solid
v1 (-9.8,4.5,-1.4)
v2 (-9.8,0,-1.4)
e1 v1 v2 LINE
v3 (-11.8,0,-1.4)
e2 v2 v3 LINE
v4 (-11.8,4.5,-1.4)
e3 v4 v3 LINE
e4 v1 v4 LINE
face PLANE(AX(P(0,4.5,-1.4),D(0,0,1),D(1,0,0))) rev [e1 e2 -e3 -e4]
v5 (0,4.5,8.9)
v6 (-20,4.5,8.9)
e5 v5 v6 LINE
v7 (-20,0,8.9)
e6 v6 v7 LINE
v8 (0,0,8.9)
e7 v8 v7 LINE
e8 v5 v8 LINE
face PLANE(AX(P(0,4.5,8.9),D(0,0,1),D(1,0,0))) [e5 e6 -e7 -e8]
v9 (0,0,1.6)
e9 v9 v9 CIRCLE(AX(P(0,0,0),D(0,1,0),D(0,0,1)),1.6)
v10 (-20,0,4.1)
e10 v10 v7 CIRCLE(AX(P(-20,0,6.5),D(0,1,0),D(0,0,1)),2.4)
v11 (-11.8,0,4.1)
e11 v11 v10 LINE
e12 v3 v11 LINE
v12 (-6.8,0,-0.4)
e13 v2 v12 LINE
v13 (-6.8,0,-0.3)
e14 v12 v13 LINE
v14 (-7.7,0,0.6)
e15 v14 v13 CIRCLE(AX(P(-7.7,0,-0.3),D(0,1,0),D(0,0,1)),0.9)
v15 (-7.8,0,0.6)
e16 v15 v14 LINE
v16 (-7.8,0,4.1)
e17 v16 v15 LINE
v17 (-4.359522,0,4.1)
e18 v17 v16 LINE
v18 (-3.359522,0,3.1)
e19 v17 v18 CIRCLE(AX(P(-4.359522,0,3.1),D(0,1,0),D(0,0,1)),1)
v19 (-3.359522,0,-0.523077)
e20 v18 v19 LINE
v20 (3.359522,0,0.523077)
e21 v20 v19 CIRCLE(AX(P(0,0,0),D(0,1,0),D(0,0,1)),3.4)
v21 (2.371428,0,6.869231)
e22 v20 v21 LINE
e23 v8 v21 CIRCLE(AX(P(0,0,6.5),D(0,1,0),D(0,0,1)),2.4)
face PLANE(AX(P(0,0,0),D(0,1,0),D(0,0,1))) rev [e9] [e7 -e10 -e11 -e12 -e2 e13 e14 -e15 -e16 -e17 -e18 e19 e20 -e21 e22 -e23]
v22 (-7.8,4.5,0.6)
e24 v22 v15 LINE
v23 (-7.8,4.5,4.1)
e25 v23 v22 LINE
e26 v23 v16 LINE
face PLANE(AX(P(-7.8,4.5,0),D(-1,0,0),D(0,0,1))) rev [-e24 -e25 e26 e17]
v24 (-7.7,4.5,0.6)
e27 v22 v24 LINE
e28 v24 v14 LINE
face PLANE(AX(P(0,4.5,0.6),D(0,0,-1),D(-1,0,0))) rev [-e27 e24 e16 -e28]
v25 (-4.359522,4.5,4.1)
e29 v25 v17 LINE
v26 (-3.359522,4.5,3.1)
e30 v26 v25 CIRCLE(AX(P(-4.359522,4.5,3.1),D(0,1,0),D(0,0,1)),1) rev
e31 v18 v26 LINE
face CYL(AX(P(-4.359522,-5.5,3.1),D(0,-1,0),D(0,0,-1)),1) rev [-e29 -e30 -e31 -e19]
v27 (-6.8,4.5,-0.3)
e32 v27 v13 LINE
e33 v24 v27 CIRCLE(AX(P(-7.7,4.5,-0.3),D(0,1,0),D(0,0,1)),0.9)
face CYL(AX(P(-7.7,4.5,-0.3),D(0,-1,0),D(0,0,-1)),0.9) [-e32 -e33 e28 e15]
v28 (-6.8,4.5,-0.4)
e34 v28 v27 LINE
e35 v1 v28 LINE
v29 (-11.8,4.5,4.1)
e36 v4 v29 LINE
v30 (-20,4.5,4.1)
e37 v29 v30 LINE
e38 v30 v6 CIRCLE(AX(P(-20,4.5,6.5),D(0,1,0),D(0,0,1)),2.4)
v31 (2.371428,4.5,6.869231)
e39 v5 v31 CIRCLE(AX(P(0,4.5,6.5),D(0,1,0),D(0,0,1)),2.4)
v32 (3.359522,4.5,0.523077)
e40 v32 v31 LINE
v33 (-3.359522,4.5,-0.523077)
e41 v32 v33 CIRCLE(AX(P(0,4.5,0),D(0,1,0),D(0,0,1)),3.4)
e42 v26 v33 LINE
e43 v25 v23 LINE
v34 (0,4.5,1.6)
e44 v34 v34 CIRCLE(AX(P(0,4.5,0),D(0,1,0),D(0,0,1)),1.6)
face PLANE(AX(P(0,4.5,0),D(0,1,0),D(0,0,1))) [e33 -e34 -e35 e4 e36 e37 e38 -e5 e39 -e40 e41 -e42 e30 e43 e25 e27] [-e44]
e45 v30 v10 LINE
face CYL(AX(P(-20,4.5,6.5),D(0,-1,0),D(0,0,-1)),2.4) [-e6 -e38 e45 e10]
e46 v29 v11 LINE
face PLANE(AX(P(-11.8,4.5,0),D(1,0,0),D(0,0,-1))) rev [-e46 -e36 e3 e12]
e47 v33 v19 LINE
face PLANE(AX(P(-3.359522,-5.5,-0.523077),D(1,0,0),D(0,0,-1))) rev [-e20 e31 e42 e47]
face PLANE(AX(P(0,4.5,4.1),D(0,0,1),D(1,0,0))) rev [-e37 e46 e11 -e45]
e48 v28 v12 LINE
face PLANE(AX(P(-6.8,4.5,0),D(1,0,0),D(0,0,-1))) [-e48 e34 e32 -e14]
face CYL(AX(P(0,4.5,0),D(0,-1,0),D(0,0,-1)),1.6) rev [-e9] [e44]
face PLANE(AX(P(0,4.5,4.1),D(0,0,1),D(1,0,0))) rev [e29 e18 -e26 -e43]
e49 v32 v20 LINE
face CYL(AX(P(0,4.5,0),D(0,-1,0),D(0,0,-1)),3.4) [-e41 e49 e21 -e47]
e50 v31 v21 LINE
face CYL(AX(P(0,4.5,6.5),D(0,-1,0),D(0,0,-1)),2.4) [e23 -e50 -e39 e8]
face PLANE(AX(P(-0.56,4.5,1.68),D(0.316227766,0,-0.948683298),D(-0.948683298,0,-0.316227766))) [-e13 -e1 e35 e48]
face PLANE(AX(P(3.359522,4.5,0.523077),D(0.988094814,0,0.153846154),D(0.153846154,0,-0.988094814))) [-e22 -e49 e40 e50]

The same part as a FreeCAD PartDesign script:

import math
import FreeCAD as App
import Part
import Sketcher
from FreeCAD import Vector


def edges_at(feature, points):
    """Names of the edges that pass closest to the given points."""
    edges = feature.Shape.Edges
    near = lambda p: min(range(len(edges)), key=lambda i: edges[i].distToShape(Part.Vertex(*p))[0])
    return sorted({f"Edge{near(p) + 1}" for p in points})

doc = App.newDocument("Part")
params = doc.addObject("Spreadsheet::Sheet", "Params")
for row, (alias, value) in enumerate([
    ("sketch1_diameter", "3.2 mm"),
    ("sketch1_radius", "3.4 mm"),
    ("sketch1_radius2", "0.9 mm"),
    ("sketch1_radius3", "2.4 mm"),
    ("sketch1_width", "2 mm"),
    ("pad1_length", "4.5 mm"),
    ("pocket1_length", "10 mm"),
    ("fillet_radius", "1 mm"),
], start=1):
    params.set(f"A{row}", alias)
    params.set(f"B{row}", "=" + value)
    params.setAlias(f"B{row}", alias)

body = doc.addObject("PartDesign::Body", "Body")

sketch1 = doc.addObject("Sketcher::SketchObject", "Sketch")
body.addObject(sketch1)
sketch1.AttachmentSupport = (doc.XZ_Plane, [""])
sketch1.MapMode = "FlatFace"
sketch1.addGeometry(Part.LineSegment(Vector(2.37, 6.87, 0), Vector(3.36, 0.52, 0)), False)
sketch1.addGeometry(Part.ArcOfCircle(Part.Circle(Vector(0, 0, 0), Vector(0, 0, 1), 3.4), math.radians(-171), math.radians(9)), False)
sketch1.addGeometry(Part.LineSegment(Vector(-3.36, -0.52, 0), Vector(-4.08, 4.1, 0)), False)
sketch1.addGeometry(Part.LineSegment(Vector(-4.08, 4.1, 0), Vector(-7.8, 4.1, 0)), False)
sketch1.addGeometry(Part.LineSegment(Vector(-7.8, 4.1, 0), Vector(-7.8, 0.6, 0)), False)
sketch1.addGeometry(Part.LineSegment(Vector(-7.8, 0.6, 0), Vector(-7.7, 0.6, 0)), False)
sketch1.addGeometry(Part.ArcOfCircle(Part.Circle(Vector(-7.7, -0.3, 0), Vector(0, 0, 1), 0.9), math.radians(0), math.radians(90)), False)
sketch1.addGeometry(Part.LineSegment(Vector(-6.8, -0.3, 0), Vector(-6.8, -0.4, 0)), False)
sketch1.addGeometry(Part.LineSegment(Vector(-6.8, -0.4, 0), Vector(-9.8, -1.4, 0)), False)
sketch1.addGeometry(Part.LineSegment(Vector(-9.8, -1.4, 0), Vector(-11.8, -1.4, 0)), False)
sketch1.addGeometry(Part.LineSegment(Vector(-11.8, -1.4, 0), Vector(-11.8, 4.1, 0)), False)
sketch1.addGeometry(Part.LineSegment(Vector(-11.8, 4.1, 0), Vector(-20, 4.1, 0)), False)
sketch1.addGeometry(Part.ArcOfCircle(Part.Circle(Vector(-20, 6.5, 0), Vector(0, 0, 1), 2.4), math.radians(90), math.radians(270)), False)
sketch1.addGeometry(Part.LineSegment(Vector(-20, 8.9, 0), Vector(0, 8.9, 0)), False)
sketch1.addGeometry(Part.ArcOfCircle(Part.Circle(Vector(0, 6.5, 0), Vector(0, 0, 1), 2.4), math.radians(9), math.radians(90)), False)
sketch1.addGeometry(Part.Circle(Vector(0, 0, 0), Vector(0, 0, 1), 1.6), False)
sketch1.addConstraint(Sketcher.Constraint("Tangent", 0, 2, 1, 2))
sketch1.addConstraint(Sketcher.Constraint("Tangent", 1, 1, 2, 1))
sketch1.addConstraint(Sketcher.Constraint("Coincident", 2, 2, 3, 1))
sketch1.addConstraint(Sketcher.Constraint("Coincident", 3, 2, 4, 1))
sketch1.addConstraint(Sketcher.Constraint("Coincident", 4, 2, 5, 1))
sketch1.addConstraint(Sketcher.Constraint("Tangent", 5, 2, 6, 2))
sketch1.addConstraint(Sketcher.Constraint("Tangent", 6, 1, 7, 1))
sketch1.addConstraint(Sketcher.Constraint("Coincident", 7, 2, 8, 1))
sketch1.addConstraint(Sketcher.Constraint("Coincident", 8, 2, 9, 1))
sketch1.addConstraint(Sketcher.Constraint("Coincident", 9, 2, 10, 1))
sketch1.addConstraint(Sketcher.Constraint("Coincident", 10, 2, 11, 1))
sketch1.addConstraint(Sketcher.Constraint("Tangent", 11, 2, 12, 2))
sketch1.addConstraint(Sketcher.Constraint("Tangent", 12, 1, 13, 1))
sketch1.addConstraint(Sketcher.Constraint("Tangent", 13, 2, 14, 2))
sketch1.addConstraint(Sketcher.Constraint("Tangent", 14, 1, 0, 1))
sketch1.addConstraint(Sketcher.Constraint("Horizontal", 3))
sketch1.addConstraint(Sketcher.Constraint("Vertical", 4))
sketch1.addConstraint(Sketcher.Constraint("Horizontal", 5))
sketch1.addConstraint(Sketcher.Constraint("Vertical", 7))
sketch1.addConstraint(Sketcher.Constraint("Horizontal", 9))
sketch1.addConstraint(Sketcher.Constraint("Vertical", 10))
sketch1.addConstraint(Sketcher.Constraint("Horizontal", 11))
sketch1.addConstraint(Sketcher.Constraint("Horizontal", 13))
sketch1.addConstraint(Sketcher.Constraint("Coincident", 1, 3, -1, 1))
sketch1.addConstraint(Sketcher.Constraint("Coincident", 15, 3, -1, 1))
sketch1.addConstraint(Sketcher.Constraint("Equal", 12, 14))
sketch1.addConstraint(Sketcher.Constraint("PointOnObject", 14, 3, -2))
sketch1.addConstraint(Sketcher.Constraint("Parallel", 0, 2))
sketch1.addConstraint(Sketcher.Constraint("Horizontal", 3, 2, 10, 2))
sketch1.addConstraint(Sketcher.Constraint("Equal", 5, 7))
sketch1.addConstraint(Sketcher.Constraint("Diameter", 15, 3.2))
sketch1.addConstraint(Sketcher.Constraint("Radius", 1, 3.4))
sketch1.addConstraint(Sketcher.Constraint("Radius", 6, 0.9))
sketch1.addConstraint(Sketcher.Constraint("Radius", 12, 2.4))
sketch1.addConstraint(Sketcher.Constraint("DistanceX", 9, 2, 9, 1, 2.0))
sketch1.addConstraint(Sketcher.Constraint("DistanceX", 13, 1, 13, 2, 20.0))
sketch1.addConstraint(Sketcher.Constraint("DistanceX", 5, 1, 5, 2, 0.1))
sketch1.addConstraint(Sketcher.Constraint("DistanceX", 11, 2, 11, 1, 8.2))
sketch1.addConstraint(Sketcher.Constraint("DistanceY", 4, 2, 4, 1, 3.5))
sketch1.addConstraint(Sketcher.Constraint("DistanceY", 10, 1, 10, 2, 5.5))
sketch1.addConstraint(Sketcher.Constraint("DistanceX", 8, 2, 4, 2, 2.0))
sketch1.addConstraint(Sketcher.Constraint("DistanceY", 6, 3, -1, 1, 0.3))
sketch1.setExpression("Constraints[30]", "Params.sketch1_diameter")
sketch1.setExpression("Constraints[31]", "Params.sketch1_radius")
sketch1.setExpression("Constraints[32]", "Params.sketch1_radius2")
sketch1.setExpression("Constraints[33]", "Params.sketch1_radius3")
sketch1.setExpression("Constraints[34]", "Params.sketch1_width")
pad1 = doc.addObject("PartDesign::Pad", "Pad")
body.addObject(pad1)
pad1.Profile = sketch1
pad1.setExpression("Length", "Params.pad1_length")
pad1.Reversed = True

sketch2 = doc.addObject("Sketcher::SketchObject", "Sketch001")
body.addObject(sketch2)
sketch2.AttachmentSupport = (doc.XZ_Plane, [""])
sketch2.MapMode = "FlatFace"
sketch2.AttachmentOffset = App.Placement(Vector(0, 0, -4.5), App.Rotation())
sketch2.addGeometry(Part.LineSegment(Vector(-3.4, 4.1, 0), Vector(-3.4, -0.5, 0)), False)
sketch2.addGeometry(Part.LineSegment(Vector(-3.4, -0.5, 0), Vector(-4.1, 4.1, 0)), False)
sketch2.addGeometry(Part.LineSegment(Vector(-4.1, 4.1, 0), Vector(-3.4, 4.1, 0)), False)
sketch2.addConstraint(Sketcher.Constraint("Coincident", 0, 2, 1, 1))
sketch2.addConstraint(Sketcher.Constraint("Coincident", 1, 2, 2, 1))
sketch2.addConstraint(Sketcher.Constraint("Coincident", 2, 2, 0, 1))
sketch2.addConstraint(Sketcher.Constraint("Vertical", 0))
sketch2.addConstraint(Sketcher.Constraint("Horizontal", 2))
sketch2.addConstraint(Sketcher.Constraint("DistanceY", -1, 1, 1, 2, 4.1))
sketch2.addConstraint(Sketcher.Constraint("Distance", 1, 4.678779))
sketch2.addConstraint(Sketcher.Constraint("DistanceX", 2, 1, 2, 2, 0.719812))
sketch2.addConstraint(Sketcher.Constraint("DistanceX", 0, 2, -1, 1, 3.359522))
pocket1 = doc.addObject("PartDesign::Pocket", "Pocket")
body.addObject(pocket1)
pocket1.Profile = sketch2
pocket1.setExpression("Length", "Params.pocket1_length")
pocket1.Reversed = True
doc.recompute()

fillet = doc.addObject("PartDesign::Fillet", "Fillet")
body.addObject(fillet)
fillet.Base = (pocket1, edges_at(pocket1, [(-3.36, 2.25, 4.1)]))
fillet.setExpression("Radius", "Params.fillet_radius")

doc.recompute()
